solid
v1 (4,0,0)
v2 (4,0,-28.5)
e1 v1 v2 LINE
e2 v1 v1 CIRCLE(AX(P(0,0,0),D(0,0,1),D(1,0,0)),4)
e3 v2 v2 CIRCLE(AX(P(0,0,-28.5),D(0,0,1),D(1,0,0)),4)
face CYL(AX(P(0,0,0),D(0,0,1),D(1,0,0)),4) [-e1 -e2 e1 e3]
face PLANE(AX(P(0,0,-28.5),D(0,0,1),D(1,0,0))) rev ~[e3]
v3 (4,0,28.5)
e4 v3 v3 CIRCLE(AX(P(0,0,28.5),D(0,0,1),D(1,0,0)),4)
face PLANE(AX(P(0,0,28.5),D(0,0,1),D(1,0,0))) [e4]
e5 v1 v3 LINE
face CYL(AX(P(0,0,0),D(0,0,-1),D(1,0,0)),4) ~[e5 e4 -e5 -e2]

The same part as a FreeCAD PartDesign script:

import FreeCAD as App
import Part
import Sketcher
from FreeCAD import Vector
Q = App.Units.Quantity

doc = App.newDocument("Part")
body = doc.addObject("PartDesign::Body", "Body")

# Sketch on XY plane
sketch1 = body.newObject("Sketcher::SketchObject", "Sketch")
sketch1.AttachmentSupport = (doc.getObject("XY_Plane"), [""])
sketch1.MapMode = "FlatFace"
sketch1.addGeometry(Part.Circle(Vector(0, 0, 0), Vector(0, 0, 1), 4), False)
sketch1.addConstraint(Sketcher.Constraint("Coincident", 0, 3, -1, 1))
sketch1.addConstraint(Sketcher.Constraint("Diameter", 0, Q("8 mm")))
pad1 = body.newObject("PartDesign::Pad", "Pad")
pad1.Profile = sketch1
pad1.Length = 57
pad1.Midplane = True

doc.recompute()
